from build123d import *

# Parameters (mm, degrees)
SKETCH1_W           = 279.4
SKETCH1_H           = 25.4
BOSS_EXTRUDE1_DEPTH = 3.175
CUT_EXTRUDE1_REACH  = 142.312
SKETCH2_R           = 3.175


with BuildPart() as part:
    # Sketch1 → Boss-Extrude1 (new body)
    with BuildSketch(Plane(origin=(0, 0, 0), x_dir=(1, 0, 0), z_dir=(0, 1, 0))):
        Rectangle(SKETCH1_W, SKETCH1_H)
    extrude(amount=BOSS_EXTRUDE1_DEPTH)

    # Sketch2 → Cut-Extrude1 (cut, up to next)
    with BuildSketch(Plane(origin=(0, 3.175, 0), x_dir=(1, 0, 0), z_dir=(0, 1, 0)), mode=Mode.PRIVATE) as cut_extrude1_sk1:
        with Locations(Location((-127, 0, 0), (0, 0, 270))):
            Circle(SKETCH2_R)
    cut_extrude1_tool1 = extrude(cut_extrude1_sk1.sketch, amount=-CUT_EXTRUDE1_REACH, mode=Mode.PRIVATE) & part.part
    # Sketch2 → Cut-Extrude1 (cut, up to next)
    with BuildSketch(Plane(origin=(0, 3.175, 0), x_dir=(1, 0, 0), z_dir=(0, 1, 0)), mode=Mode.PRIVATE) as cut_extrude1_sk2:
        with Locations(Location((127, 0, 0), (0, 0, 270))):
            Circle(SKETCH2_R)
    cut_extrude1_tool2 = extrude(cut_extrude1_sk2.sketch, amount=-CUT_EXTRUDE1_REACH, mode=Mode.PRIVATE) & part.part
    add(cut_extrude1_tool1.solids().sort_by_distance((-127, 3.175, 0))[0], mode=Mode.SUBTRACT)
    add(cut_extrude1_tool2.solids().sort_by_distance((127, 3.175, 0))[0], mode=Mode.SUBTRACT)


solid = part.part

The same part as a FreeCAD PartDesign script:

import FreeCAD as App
import Part
import Sketcher
from FreeCAD import Vector
Q = App.Units.Quantity


def add_polygon(sketch, points):
    """Adds a closed chain of lines whose ends are joined by coincident constraints."""
    first, n = sketch.GeometryCount, len(points)
    for a, b in zip(points, points[1:] + points[:1]):
        sketch.addGeometry(Part.LineSegment(App.Vector(*a, 0), App.Vector(*b, 0)), False)
    for i in range(n):
        sketch.addConstraint(Sketcher.Constraint("Coincident", first + i, 2, first + (i + 1) % n, 1))

doc = App.newDocument("Part")
body = doc.addObject("PartDesign::Body", "Body")

# Sketch on XZ plane
sketch1 = doc.addObject("Sketcher::SketchObject", "Sketch")
body.addObject(sketch1)
sketch1.AttachmentSupport = (doc.XZ_Plane, [""])
sketch1.MapMode = "FlatFace"
add_polygon(sketch1, [(-140, -13), (-140, 13), (140, 13), (140, -13)])  # lines 0-3
sketch1.addConstraint([
    Sketcher.Constraint("Vertical", 0),
    Sketcher.Constraint("Horizontal", 1),
    Sketcher.Constraint("Vertical", 2),
    Sketcher.Constraint("Horizontal", 3),
    Sketcher.Constraint("Symmetric", 0, 2, 2, 2, -1, 1),
    Sketcher.Constraint("DistanceX", 1, 1, 1, 2, Q("11 in")),
    Sketcher.Constraint("DistanceY", 0, 1, 0, 2, Q("1 in")),
])
pad1 = doc.addObject("PartDesign::Pad", "Pad")
body.addObject(pad1)
pad1.Profile = sketch1
pad1.Length = Q("0.125 in")
pad1.Reversed = True

# Sketch on XZ plane
sketch2 = doc.addObject("Sketcher::SketchObject", "Sketch001")
body.addObject(sketch2)
sketch2.AttachmentSupport = (doc.XZ_Plane, [""])
sketch2.MapMode = "FlatFace"
sketch2.AttachmentOffset = App.Placement(Vector(0, 0, -0.125 * 25.4), App.Rotation())
sketch2.addGeometry(Part.Circle(Vector(-127, 0, 0), Vector(0, 0, 1), 3.2), False)
sketch2.addConstraint([
    Sketcher.Constraint("PointOnObject", 0, 3, -1),
    Sketcher.Constraint("Diameter", 0, Q("0.25 in")),
    Sketcher.Constraint("DistanceX", 0, 3, -1, 1, Q("5 in")),
])
pocket1 = doc.addObject("PartDesign::Pocket", "Pocket")
body.addObject(pocket1)
pocket1.Profile = sketch2
pocket1.Type = "UpToFirst"
pocket1.Reversed = True

# Sketch on XZ plane
sketch3 = doc.addObject("Sketcher::SketchObject", "Sketch002")
body.addObject(sketch3)
sketch3.AttachmentSupport = (doc.XZ_Plane, [""])
sketch3.MapMode = "FlatFace"
sketch3.AttachmentOffset = App.Placement(Vector(0, 0, -0.125 * 25.4), App.Rotation())
sketch3.addGeometry(Part.Circle(Vector(127, 0, 0), Vector(0, 0, 1), 3.2), False)
sketch3.addConstraint([
    Sketcher.Constraint("PointOnObject", 0, 3, -1),
    Sketcher.Constraint("Diameter", 0, Q("0.25 in")),
    Sketcher.Constraint("DistanceX", -1, 1, 0, 3, Q("5 in")),
])
pocket2 = doc.addObject("PartDesign::Pocket", "Pocket001")
body.addObject(pocket2)
pocket2.Profile = sketch3
pocket2.Type = "UpToFirst"
pocket2.Reversed = True

doc.recompute()
